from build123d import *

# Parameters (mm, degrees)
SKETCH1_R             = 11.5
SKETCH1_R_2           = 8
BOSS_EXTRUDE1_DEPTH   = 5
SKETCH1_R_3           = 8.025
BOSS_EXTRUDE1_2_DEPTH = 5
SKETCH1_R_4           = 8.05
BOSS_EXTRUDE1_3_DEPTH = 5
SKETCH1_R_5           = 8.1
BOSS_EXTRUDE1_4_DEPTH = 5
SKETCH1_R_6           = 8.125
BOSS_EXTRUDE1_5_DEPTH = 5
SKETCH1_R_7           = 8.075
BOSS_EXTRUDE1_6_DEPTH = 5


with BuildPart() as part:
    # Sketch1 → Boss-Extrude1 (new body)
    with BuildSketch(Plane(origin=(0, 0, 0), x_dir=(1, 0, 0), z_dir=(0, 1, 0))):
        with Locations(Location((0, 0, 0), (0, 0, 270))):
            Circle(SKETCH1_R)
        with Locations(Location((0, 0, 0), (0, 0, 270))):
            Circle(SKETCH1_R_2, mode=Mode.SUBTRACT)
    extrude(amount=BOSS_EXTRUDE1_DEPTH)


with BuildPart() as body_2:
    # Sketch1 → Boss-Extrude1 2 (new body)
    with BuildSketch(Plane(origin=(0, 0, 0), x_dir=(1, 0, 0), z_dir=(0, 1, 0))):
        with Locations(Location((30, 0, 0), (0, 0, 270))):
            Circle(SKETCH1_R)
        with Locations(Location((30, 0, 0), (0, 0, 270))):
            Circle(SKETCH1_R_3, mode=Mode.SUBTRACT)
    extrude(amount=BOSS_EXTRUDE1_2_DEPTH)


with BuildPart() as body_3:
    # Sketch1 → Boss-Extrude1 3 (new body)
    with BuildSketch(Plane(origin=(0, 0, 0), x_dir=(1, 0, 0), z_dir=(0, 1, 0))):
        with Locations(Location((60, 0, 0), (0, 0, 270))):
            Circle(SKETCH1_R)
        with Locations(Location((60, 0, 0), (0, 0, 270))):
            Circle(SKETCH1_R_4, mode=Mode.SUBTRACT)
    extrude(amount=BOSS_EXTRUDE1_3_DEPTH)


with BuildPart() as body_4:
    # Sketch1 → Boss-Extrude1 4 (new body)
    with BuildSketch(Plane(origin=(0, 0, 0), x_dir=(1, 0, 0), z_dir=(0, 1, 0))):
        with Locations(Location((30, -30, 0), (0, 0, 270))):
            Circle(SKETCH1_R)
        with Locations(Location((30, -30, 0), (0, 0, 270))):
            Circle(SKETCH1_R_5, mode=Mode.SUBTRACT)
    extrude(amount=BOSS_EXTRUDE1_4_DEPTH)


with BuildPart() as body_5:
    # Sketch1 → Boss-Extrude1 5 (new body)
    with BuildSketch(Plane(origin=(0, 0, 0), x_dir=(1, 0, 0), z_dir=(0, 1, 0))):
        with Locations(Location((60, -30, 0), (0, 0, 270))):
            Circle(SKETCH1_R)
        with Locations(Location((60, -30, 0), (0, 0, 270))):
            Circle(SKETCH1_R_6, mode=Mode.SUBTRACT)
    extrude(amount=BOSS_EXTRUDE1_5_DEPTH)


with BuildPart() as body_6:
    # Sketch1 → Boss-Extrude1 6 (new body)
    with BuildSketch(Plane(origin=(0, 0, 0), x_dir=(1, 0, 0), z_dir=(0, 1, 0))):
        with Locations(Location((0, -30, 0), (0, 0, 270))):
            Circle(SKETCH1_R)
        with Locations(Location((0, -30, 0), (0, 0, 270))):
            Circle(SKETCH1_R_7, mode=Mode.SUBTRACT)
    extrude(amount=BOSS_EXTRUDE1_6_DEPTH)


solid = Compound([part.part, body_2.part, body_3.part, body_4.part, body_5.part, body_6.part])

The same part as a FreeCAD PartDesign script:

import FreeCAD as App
import Part
import Sketcher

V = App.Vector
Q = App.Units.Quantity

doc = App.newDocument("Part")
params = doc.addObject("Spreadsheet::Sheet", "Params")
for row, (alias, value) in enumerate([
    ("sketch1_diameter", "23 mm"),
    ("sketch1_diameter2", "16 mm"),
    ("pad1_length", "5 mm"),
    ("sketch2_diameter", "23 mm"),
    ("sketch2_diameter2", "16.05 mm"),
    ("pad2_length", "5 mm"),
    ("sketch3_diameter", "23 mm"),
    ("sketch3_diameter2", "16.1 mm"),
    ("pad3_length", "5 mm"),
    ("sketch4_diameter", "23 mm"),
    ("sketch4_diameter2", "16.2 mm"),
    ("pad4_length", "5 mm"),
    ("sketch5_diameter", "23 mm"),
    ("sketch5_diameter2", "16.25 mm"),
    ("pad5_length", "5 mm"),
    ("sketch6_diameter", "23 mm"),
    ("sketch6_diameter2", "16.15 mm"),
    ("pad6_length", "5 mm"),
], start=1):
    params.set(f"A{row}", alias)
    params.set(f"B{row}", "=" + value)
    params.setAlias(f"B{row}", alias)

body = doc.addObject("PartDesign::Body", "Body")

# Sketch on XZ plane
sketch1 = doc.addObject("Sketcher::SketchObject", "Sketch")
body.addObject(sketch1)
sketch1.AttachmentSupport = (doc.XZ_Plane, [""])
sketch1.MapMode = "FlatFace"
sketch1.addGeometry(Part.Circle(V(0, 0, 0), V(0, 0, 1), 12), False)
sketch1.addGeometry(Part.Circle(V(0, 0, 0), V(0, 0, 1), 8), False)
sketch1.addConstraint(Sketcher.Constraint("Coincident", 0, 3, -1, 1))
sketch1.addConstraint(Sketcher.Constraint("Coincident", 1, 3, -1, 1))
sketch1.addConstraint(Sketcher.Constraint("Diameter", 0, Q("23 mm")))
sketch1.addConstraint(Sketcher.Constraint("Diameter", 1, Q("16 mm")))
sketch1.setExpression("Constraints[2]", "Params.sketch1_diameter")
sketch1.setExpression("Constraints[3]", "Params.sketch1_diameter2")
pad1 = doc.addObject("PartDesign::Pad", "Pad")
body.addObject(pad1)
pad1.Profile = sketch1
pad1.setExpression("Length", "Params.pad1_length")
pad1.Reversed = True
body2 = doc.addObject("PartDesign::Body", "Body001")

# Sketch on XZ plane
sketch2 = doc.addObject("Sketcher::SketchObject", "Sketch001")
body2.addObject(sketch2)
sketch2.AttachmentSupport = (doc.getObject("XZ_Plane001"), [""])
sketch2.MapMode = "FlatFace"
sketch2.addGeometry(Part.Circle(V(30, 0, 0), V(0, 0, 1), 12), False)
sketch2.addGeometry(Part.Circle(V(30, 0, 0), V(0, 0, 1), 8), False)
sketch2.addConstraint(Sketcher.Constraint("Coincident", 1, 3, 0, 3))
sketch2.addConstraint(Sketcher.Constraint("PointOnObject", 0, 3, -1))
sketch2.addConstraint(Sketcher.Constraint("Diameter", 0, Q("23 mm")))
sketch2.addConstraint(Sketcher.Constraint("Diameter", 1, Q("16.05 mm")))
sketch2.addConstraint(Sketcher.Constraint("DistanceX", -1, 1, 0, 3, Q("30 mm")))
sketch2.setExpression("Constraints[2]", "Params.sketch2_diameter")
sketch2.setExpression("Constraints[3]", "Params.sketch2_diameter2")
pad2 = doc.addObject("PartDesign::Pad", "Pad001")
body2.addObject(pad2)
pad2.Profile = sketch2
pad2.setExpression("Length", "Params.pad2_length")
pad2.Reversed = True
body3 = doc.addObject("PartDesign::Body", "Body002")

# Sketch on XZ plane
sketch3 = doc.addObject("Sketcher::SketchObject", "Sketch002")
body3.addObject(sketch3)
sketch3.AttachmentSupport = (doc.getObject("XZ_Plane002"), [""])
sketch3.MapMode = "FlatFace"
sketch3.addGeometry(Part.Circle(V(60, 0, 0), V(0, 0, 1), 12), False)
sketch3.addGeometry(Part.Circle(V(60, 0, 0), V(0, 0, 1), 8), False)
sketch3.addConstraint(Sketcher.Constraint("Coincident", 1, 3, 0, 3))
sketch3.addConstraint(Sketcher.Constraint("PointOnObject", 0, 3, -1))
sketch3.addConstraint(Sketcher.Constraint("Diameter", 0, Q("23 mm")))
sketch3.addConstraint(Sketcher.Constraint("Diameter", 1, Q("16.1 mm")))
sketch3.addConstraint(Sketcher.Constraint("DistanceX", -1, 1, 0, 3, Q("60 mm")))
sketch3.setExpression("Constraints[2]", "Params.sketch3_diameter")
sketch3.setExpression("Constraints[3]", "Params.sketch3_diameter2")
pad3 = doc.addObject("PartDesign::Pad", "Pad002")
body3.addObject(pad3)
pad3.Profile = sketch3
pad3.setExpression("Length", "Params.pad3_length")
pad3.Reversed = True
body4 = doc.addObject("PartDesign::Body", "Body003")

# Sketch on XZ plane
sketch4 = doc.addObject("Sketcher::SketchObject", "Sketch003")
body4.addObject(sketch4)
sketch4.AttachmentSupport = (doc.getObject("XZ_Plane003"), [""])
sketch4.MapMode = "FlatFace"
sketch4.addGeometry(Part.Circle(V(30, 30, 0), V(0, 0, 1), 12), False)
sketch4.addGeometry(Part.Circle(V(30, 30, 0), V(0, 0, 1), 8), False)
sketch4.addConstraint(Sketcher.Constraint("Coincident", 1, 3, 0, 3))
sketch4.addConstraint(Sketcher.Constraint("Diameter", 0, Q("23 mm")))
sketch4.addConstraint(Sketcher.Constraint("Diameter", 1, Q("16.2 mm")))
sketch4.addConstraint(Sketcher.Constraint("DistanceX", -1, 1, 0, 3, Q("30 mm")))
sketch4.addConstraint(Sketcher.Constraint("DistanceY", -1, 1, 0, 3, Q("30 mm")))
sketch4.setExpression("Constraints[1]", "Params.sketch4_diameter")
sketch4.setExpression("Constraints[2]", "Params.sketch4_diameter2")
pad4 = doc.addObject("PartDesign::Pad", "Pad003")
body4.addObject(pad4)
pad4.Profile = sketch4
pad4.setExpression("Length", "Params.pad4_length")
pad4.Reversed = True
body5 = doc.addObject("PartDesign::Body", "Body004")

# Sketch on XZ plane
sketch5 = doc.addObject("Sketcher::SketchObject", "Sketch004")
body5.addObject(sketch5)
sketch5.AttachmentSupport = (doc.getObject("XZ_Plane004"), [""])
sketch5.MapMode = "FlatFace"
sketch5.addGeometry(Part.Circle(V(60, 30, 0), V(0, 0, 1), 12), False)
sketch5.addGeometry(Part.Circle(V(60, 30, 0), V(0, 0, 1), 8), False)
sketch5.addConstraint(Sketcher.Constraint("Coincident", 1, 3, 0, 3))
sketch5.addConstraint(Sketcher.Constraint("Diameter", 0, Q("23 mm")))
sketch5.addConstraint(Sketcher.Constraint("Diameter", 1, Q("16.25 mm")))
sketch5.addConstraint(Sketcher.Constraint("DistanceX", -1, 1, 0, 3, Q("60 mm")))
sketch5.addConstraint(Sketcher.Constraint("DistanceY", -1, 1, 0, 3, Q("30 mm")))
sketch5.setExpression("Constraints[1]", "Params.sketch5_diameter")
sketch5.setExpression("Constraints[2]", "Params.sketch5_diameter2")
pad5 = doc.addObject("PartDesign::Pad", "Pad004")
body5.addObject(pad5)
pad5.Profile = sketch5
pad5.setExpression("Length", "Params.pad5_length")
pad5.Reversed = True
body6 = doc.addObject("PartDesign::Body", "Body005")

# Sketch on XZ plane
sketch6 = doc.addObject("Sketcher::SketchObject", "Sketch005")
body6.addObject(sketch6)
sketch6.AttachmentSupport = (doc.getObject("XZ_Plane005"), [""])
sketch6.MapMode = "FlatFace"
sketch6.addGeometry(Part.Circle(V(0, 30, 0), V(0, 0, 1), 12), False)
sketch6.addGeometry(Part.Circle(V(0, 30, 0), V(0, 0, 1), 8), False)
sketch6.addConstraint(Sketcher.Constraint("Coincident", 1, 3, 0, 3))
sketch6.addConstraint(Sketcher.Constraint("PointOnObject", 0, 3, -2))
sketch6.addConstraint(Sketcher.Constraint("Diameter", 0, Q("23 mm")))
sketch6.addConstraint(Sketcher.Constraint("Diameter", 1, Q("16.15 mm")))
sketch6.addConstraint(Sketcher.Constraint("DistanceY", -1, 1, 0, 3, Q("30 mm")))
sketch6.setExpression("Constraints[2]", "Params.sketch6_diameter")
sketch6.setExpression("Constraints[3]", "Params.sketch6_diameter2")
pad6 = doc.addObject("PartDesign::Pad", "Pad005")
body6.addObject(pad6)
pad6.Profile = sketch6
pad6.setExpression("Length", "Params.pad6_length")
pad6.Reversed = True

doc.recompute()
